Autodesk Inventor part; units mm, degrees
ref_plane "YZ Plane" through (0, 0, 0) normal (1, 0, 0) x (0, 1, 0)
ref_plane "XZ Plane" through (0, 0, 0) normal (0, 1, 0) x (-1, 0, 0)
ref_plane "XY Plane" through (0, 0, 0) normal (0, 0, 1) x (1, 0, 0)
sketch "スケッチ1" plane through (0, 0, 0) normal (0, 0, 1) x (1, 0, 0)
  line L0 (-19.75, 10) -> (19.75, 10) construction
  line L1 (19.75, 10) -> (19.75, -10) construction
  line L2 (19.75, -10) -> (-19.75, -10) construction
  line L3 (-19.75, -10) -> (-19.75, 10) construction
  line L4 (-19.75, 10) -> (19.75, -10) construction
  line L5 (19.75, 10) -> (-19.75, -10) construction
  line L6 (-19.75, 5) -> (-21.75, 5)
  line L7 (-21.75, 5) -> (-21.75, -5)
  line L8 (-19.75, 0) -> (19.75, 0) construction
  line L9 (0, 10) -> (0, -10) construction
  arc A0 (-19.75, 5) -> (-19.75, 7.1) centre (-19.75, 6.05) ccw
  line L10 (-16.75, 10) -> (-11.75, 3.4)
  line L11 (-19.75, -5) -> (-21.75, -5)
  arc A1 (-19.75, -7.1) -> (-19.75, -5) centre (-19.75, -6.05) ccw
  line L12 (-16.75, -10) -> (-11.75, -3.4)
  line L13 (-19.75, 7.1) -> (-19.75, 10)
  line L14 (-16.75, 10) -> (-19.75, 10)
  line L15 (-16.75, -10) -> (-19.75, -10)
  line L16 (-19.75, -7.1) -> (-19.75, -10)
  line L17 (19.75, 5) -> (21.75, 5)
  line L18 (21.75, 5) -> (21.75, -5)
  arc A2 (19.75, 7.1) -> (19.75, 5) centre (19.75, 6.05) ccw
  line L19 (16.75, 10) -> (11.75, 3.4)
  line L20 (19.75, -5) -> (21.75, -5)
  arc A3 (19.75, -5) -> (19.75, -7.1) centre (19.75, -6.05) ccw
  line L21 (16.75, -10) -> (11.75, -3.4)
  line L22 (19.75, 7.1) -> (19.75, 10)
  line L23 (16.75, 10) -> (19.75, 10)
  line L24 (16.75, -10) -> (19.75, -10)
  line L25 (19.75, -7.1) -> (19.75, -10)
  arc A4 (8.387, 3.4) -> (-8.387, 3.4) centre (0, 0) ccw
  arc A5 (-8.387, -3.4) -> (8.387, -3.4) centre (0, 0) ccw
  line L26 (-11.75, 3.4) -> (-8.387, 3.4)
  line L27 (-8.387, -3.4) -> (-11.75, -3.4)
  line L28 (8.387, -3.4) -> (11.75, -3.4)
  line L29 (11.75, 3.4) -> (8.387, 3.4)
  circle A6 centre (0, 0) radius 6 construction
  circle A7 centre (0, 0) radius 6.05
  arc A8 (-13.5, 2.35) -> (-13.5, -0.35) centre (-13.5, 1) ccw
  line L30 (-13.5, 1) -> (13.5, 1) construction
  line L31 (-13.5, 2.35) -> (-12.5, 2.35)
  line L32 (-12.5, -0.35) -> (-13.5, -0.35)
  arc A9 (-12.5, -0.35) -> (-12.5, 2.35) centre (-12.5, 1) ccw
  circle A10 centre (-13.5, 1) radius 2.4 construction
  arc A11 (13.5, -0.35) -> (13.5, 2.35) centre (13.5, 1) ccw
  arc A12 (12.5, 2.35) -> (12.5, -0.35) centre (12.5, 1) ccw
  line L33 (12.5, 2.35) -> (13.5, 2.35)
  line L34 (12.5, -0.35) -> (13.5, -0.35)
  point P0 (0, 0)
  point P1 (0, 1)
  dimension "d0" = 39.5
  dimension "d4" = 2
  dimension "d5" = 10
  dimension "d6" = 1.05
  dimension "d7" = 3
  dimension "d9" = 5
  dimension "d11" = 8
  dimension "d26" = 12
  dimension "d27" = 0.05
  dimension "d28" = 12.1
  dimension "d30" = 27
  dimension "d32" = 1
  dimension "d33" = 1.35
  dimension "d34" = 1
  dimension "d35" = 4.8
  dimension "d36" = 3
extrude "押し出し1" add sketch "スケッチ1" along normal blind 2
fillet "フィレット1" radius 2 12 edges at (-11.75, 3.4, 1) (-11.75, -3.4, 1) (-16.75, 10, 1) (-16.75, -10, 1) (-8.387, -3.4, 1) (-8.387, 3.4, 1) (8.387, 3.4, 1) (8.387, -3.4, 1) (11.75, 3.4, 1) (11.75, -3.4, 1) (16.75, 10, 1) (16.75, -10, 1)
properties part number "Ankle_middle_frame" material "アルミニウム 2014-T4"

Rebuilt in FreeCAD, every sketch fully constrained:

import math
import FreeCAD as App
import Part
import Sketcher

V = App.Vector
Q = App.Units.Quantity


def edges_at(feature, points):
    """Names of the edges that pass closest to the given points."""
    edges = feature.Shape.Edges
    near = lambda p: min(range(len(edges)), key=lambda i: edges[i].distToShape(Part.Vertex(*p))[0])
    return sorted({f"Edge{near(p) + 1}" for p in points})

doc = App.newDocument("Part")
body = doc.addObject("PartDesign::Body", "Body")

# Sketch on XY plane
sketch1 = body.newObject("Sketcher::SketchObject", "Sketch")
sketch1.AttachmentSupport = (doc.getObject("XY_Plane"), [""])
sketch1.MapMode = "FlatFace"
sketch1.addGeometry([
    Part.ArcOfCircle(Part.Circle(V(-19.8, 6, 0), V(0, 0, 1), 1), math.radians(-90), math.radians(90)),  # 0
    Part.LineSegment(V(-19.8, 5, 0), V(-21.8, 5, 0)),  # 1
    Part.LineSegment(V(-21.8, 5, 0), V(-21.8, -5, 0)),  # 2
    Part.LineSegment(V(-21.8, -5, 0), V(-19.8, -5, 0)),  # 3
    Part.ArcOfCircle(Part.Circle(V(-19.8, -6, 0), V(0, 0, 1), 1), math.radians(-90), math.radians(90)),  # 4
    Part.LineSegment(V(-19.8, -7.1, 0), V(-19.8, -10, 0)),  # 5
    Part.LineSegment(V(-19.8, -10, 0), V(-16.8, -10, 0)),  # 6
    Part.LineSegment(V(-16.8, -10, 0), V(-11.8, -3.4, 0)),  # 7
    Part.LineSegment(V(-11.8, -3.4, 0), V(-8.4, -3.4, 0)),  # 8
    Part.ArcOfCircle(Part.Circle(V(0, 0, 0), V(0, 0, 1), 9), math.radians(-158), math.radians(-22)),  # 9
    Part.LineSegment(V(8.4, -3.4, 0), V(11.8, -3.4, 0)),  # 10
    Part.LineSegment(V(11.8, -3.4, 0), V(16.8, -10, 0)),  # 11
    Part.LineSegment(V(16.8, -10, 0), V(19.8, -10, 0)),  # 12
    Part.LineSegment(V(19.8, -10, 0), V(19.8, -7.1, 0)),  # 13
    Part.ArcOfCircle(Part.Circle(V(19.8, -6, 0), V(0, 0, 1), 1), math.radians(90), math.radians(270)),  # 14
    Part.LineSegment(V(19.8, -5, 0), V(21.8, -5, 0)),  # 15
    Part.LineSegment(V(21.8, -5, 0), V(21.8, 5, 0)),  # 16
    Part.LineSegment(V(21.8, 5, 0), V(19.8, 5, 0)),  # 17
    Part.ArcOfCircle(Part.Circle(V(19.8, 6, 0), V(0, 0, 1), 1), math.radians(90), math.radians(270)),  # 18
    Part.LineSegment(V(19.8, 7.1, 0), V(19.8, 10, 0)),  # 19
    Part.LineSegment(V(19.8, 10, 0), V(16.8, 10, 0)),  # 20
    Part.LineSegment(V(16.8, 10, 0), V(11.8, 3.4, 0)),  # 21
    Part.LineSegment(V(11.8, 3.4, 0), V(8.4, 3.4, 0)),  # 22
    Part.ArcOfCircle(Part.Circle(V(0, 0, 0), V(0, 0, 1), 9), math.radians(22), math.radians(158)),  # 23
    Part.LineSegment(V(-8.4, 3.4, 0), V(-11.8, 3.4, 0)),  # 24
    Part.LineSegment(V(-11.8, 3.4, 0), V(-16.8, 10, 0)),  # 25
    Part.LineSegment(V(-16.8, 10, 0), V(-19.8, 10, 0)),  # 26
    Part.LineSegment(V(-19.8, 10, 0), V(-19.8, 7.1, 0)),  # 27
    Part.ArcOfCircle(Part.Circle(V(-13.5, 1, 0), V(0, 0, 1), 1.4), math.radians(90), math.radians(270)),  # 28
    Part.LineSegment(V(-13.5, 2.4, 0), V(-12.5, 2.4, 0)),  # 29
    Part.ArcOfCircle(Part.Circle(V(-12.5, 1, 0), V(0, 0, 1), 1.4), math.radians(-90), math.radians(90)),  # 30
    Part.LineSegment(V(-12.5, -0.3, 0), V(-13.5, -0.3, 0)),  # 31
    Part.Circle(V(0, 0, 0), V(0, 0, 1), 6),  # 32
    Part.ArcOfCircle(Part.Circle(V(13.5, 1, 0), V(0, 0, 1), 1.4), math.radians(-90), math.radians(90)),  # 33
    Part.LineSegment(V(13.5, -0.3, 0), V(12.5, -0.3, 0)),  # 34
    Part.ArcOfCircle(Part.Circle(V(12.5, 1, 0), V(0, 0, 1), 1.4), math.radians(90), math.radians(270)),  # 35
    Part.LineSegment(V(12.5, 2.4, 0), V(13.5, 2.4, 0)),  # 36
], False)
sketch1.addConstraint([
    Sketcher.Constraint("Tangent", 0, 1, 1, 1),
    Sketcher.Constraint("Coincident", 1, 2, 2, 1),
    Sketcher.Constraint("Coincident", 2, 2, 3, 1),
    Sketcher.Constraint("Tangent", 3, 2, 4, 2),
    Sketcher.Constraint("Coincident", 4, 1, 5, 1),
    Sketcher.Constraint("Coincident", 5, 2, 6, 1),
    Sketcher.Constraint("Coincident", 6, 2, 7, 1),
    Sketcher.Constraint("Coincident", 7, 2, 8, 1),
    Sketcher.Constraint("Coincident", 8, 2, 9, 1),
    Sketcher.Constraint("Coincident", 9, 2, 10, 1),
    Sketcher.Constraint("Coincident", 10, 2, 11, 1),
    Sketcher.Constraint("Coincident", 11, 2, 12, 1),
    Sketcher.Constraint("Coincident", 12, 2, 13, 1),
    Sketcher.Constraint("Coincident", 13, 2, 14, 2),
    Sketcher.Constraint("Tangent", 14, 1, 15, 1),
    Sketcher.Constraint("Coincident", 15, 2, 16, 1),
    Sketcher.Constraint("Coincident", 16, 2, 17, 1),
    Sketcher.Constraint("Tangent", 17, 2, 18, 2),
    Sketcher.Constraint("Coincident", 18, 1, 19, 1),
    Sketcher.Constraint("Coincident", 19, 2, 20, 1),
    Sketcher.Constraint("Coincident", 20, 2, 21, 1),
    Sketcher.Constraint("Coincident", 21, 2, 22, 1),
    Sketcher.Constraint("Coincident", 22, 2, 23, 1),
    Sketcher.Constraint("Coincident", 23, 2, 24, 1),
    Sketcher.Constraint("Coincident", 24, 2, 25, 1),
    Sketcher.Constraint("Coincident", 25, 2, 26, 1),
    Sketcher.Constraint("Coincident", 26, 2, 27, 1),
    Sketcher.Constraint("Coincident", 27, 2, 0, 2),
    Sketcher.Constraint("Tangent", 28, 1, 29, 1),
    Sketcher.Constraint("Tangent", 29, 2, 30, 2),
    Sketcher.Constraint("Tangent", 30, 1, 31, 1),
    Sketcher.Constraint("Tangent", 31, 2, 28, 2),
    Sketcher.Constraint("Tangent", 33, 1, 34, 1),
    Sketcher.Constraint("Tangent", 34, 2, 35, 2),
    Sketcher.Constraint("Tangent", 35, 1, 36, 1),
    Sketcher.Constraint("Tangent", 36, 2, 33, 2),
    Sketcher.Constraint("Horizontal", 1),
    Sketcher.Constraint("Vertical", 2),
    Sketcher.Constraint("Horizontal", 3),
    Sketcher.Constraint("Vertical", 5),
    Sketcher.Constraint("Horizontal", 6),
    Sketcher.Constraint("Horizontal", 8),
    Sketcher.Constraint("Horizontal", 10),
    Sketcher.Constraint("Horizontal", 12),
    Sketcher.Constraint("Vertical", 13),
    Sketcher.Constraint("Horizontal", 15),
    Sketcher.Constraint("Vertical", 16),
    Sketcher.Constraint("Horizontal", 17),
    Sketcher.Constraint("Vertical", 19),
    Sketcher.Constraint("Horizontal", 20),
    Sketcher.Constraint("Horizontal", 22),
    Sketcher.Constraint("Horizontal", 24),
    Sketcher.Constraint("Horizontal", 26),
    Sketcher.Constraint("Vertical", 27),
    Sketcher.Constraint("Horizontal", 29),
    Sketcher.Constraint("Horizontal", 31),
    Sketcher.Constraint("Horizontal", 34),
    Sketcher.Constraint("Horizontal", 36),
    Sketcher.Constraint("Coincident", 9, 3, -1, 1),
    Sketcher.Constraint("Coincident", 23, 3, -1, 1),
    Sketcher.Constraint("Coincident", 32, 3, -1, 1),
    Sketcher.Constraint("Equal", 0, 4),
    Sketcher.Constraint("Equal", 4, 14),
    Sketcher.Constraint("Equal", 14, 18),
    Sketcher.Constraint("Equal", 9, 23),
    Sketcher.Constraint("Equal", 30, 33),
    Sketcher.Constraint("Symmetric", 0, 3, 14, 3, -1, 1),
    Sketcher.Constraint("Symmetric", 4, 3, 18, 3, -1, 1),
    Sketcher.Constraint("Symmetric", 5, 2, 19, 2, -1, 1),
    Sketcher.Constraint("Symmetric", 7, 2, 21, 2, -1, 1),
    Sketcher.Constraint("Symmetric", 10, 2, 24, 2, -1, 1),
    Sketcher.Constraint("Symmetric", 11, 2, 25, 2, -1, 1),
    Sketcher.Constraint("Symmetric", 4, 3, 14, 3, -2),
    Sketcher.Constraint("Symmetric", 28, 3, 33, 3, -2),
    Sketcher.Constraint("Symmetric", 7, 2, 10, 2, -2),
    Sketcher.Constraint("Symmetric", 6, 2, 11, 2, -2),
    Sketcher.Constraint("Parallel", 7, 21),
    Sketcher.Constraint("Vertical", 3, 2, 4, 1),
    Sketcher.Constraint("Vertical", 18, 3, 12, 2),
    Sketcher.Constraint("Vertical", 5, 2, 26, 2),
    Sketcher.Constraint("Equal", 3, 15),
    Sketcher.Constraint("Equal", 31, 34),
    Sketcher.Constraint("Diameter", 32, Q("12.1 mm")),
    Sketcher.Constraint("DistanceX", 1, 2, 1, 1, Q("2 mm")),
    Sketcher.Constraint("DistanceX", 6, 1, 6, 2, Q("3 mm")),
    Sketcher.Constraint("DistanceX", 29, 1, 29, 2, Q("1 mm")),
    Sketcher.Constraint("DistanceY", 2, 2, 2, 1, Q("10 mm")),
    Sketcher.Constraint("Radius", 0, Q("1.05 mm")),
    Sketcher.Constraint("Radius", 28, Q("1.35 mm")),
    Sketcher.Constraint("DistanceY", -1, 1, 28, 3, Q("1 mm")),
    Sketcher.Constraint("DistanceY", 5, 2, -1, 1, Q("10 mm")),
    Sketcher.Constraint("DistanceX", 3, 2, 7, 2, Q("8 mm")),
    Sketcher.Constraint("DistanceX", 4, 3, 14, 3, Q("39.5 mm")),
    Sketcher.Constraint("Radius", 9, Q("9.05 mm")),
    Sketcher.Constraint("DistanceY", 28, 1, 24, 2, Q("1.05 mm")),
    Sketcher.Constraint("DistanceX", 28, 3, -1, 1, Q("13.5 mm")),
])
pad1 = body.newObject("PartDesign::Pad", "Pad")
pad1.Profile = sketch1
pad1.Length = 2
doc.recompute()

fillet = body.newObject("PartDesign::Fillet", "Fillet")
fillet.Base = (pad1, edges_at(pad1, [
    (-11.75, 3.4, 1),
    (-11.75, -3.4, 1),
    (-16.75, 10, 1),
    (-16.75, -10, 1),
    (-8.387, -3.4, 1),
    (-8.387, 3.4, 1),
    (8.387, 3.4, 1),
    (8.387, -3.4, 1),
    (11.75, 3.4, 1),
    (11.75, -3.4, 1),
    (16.75, 10, 1),
    (16.75, -10, 1),
]))
fillet.Radius = 2

doc.recompute()
